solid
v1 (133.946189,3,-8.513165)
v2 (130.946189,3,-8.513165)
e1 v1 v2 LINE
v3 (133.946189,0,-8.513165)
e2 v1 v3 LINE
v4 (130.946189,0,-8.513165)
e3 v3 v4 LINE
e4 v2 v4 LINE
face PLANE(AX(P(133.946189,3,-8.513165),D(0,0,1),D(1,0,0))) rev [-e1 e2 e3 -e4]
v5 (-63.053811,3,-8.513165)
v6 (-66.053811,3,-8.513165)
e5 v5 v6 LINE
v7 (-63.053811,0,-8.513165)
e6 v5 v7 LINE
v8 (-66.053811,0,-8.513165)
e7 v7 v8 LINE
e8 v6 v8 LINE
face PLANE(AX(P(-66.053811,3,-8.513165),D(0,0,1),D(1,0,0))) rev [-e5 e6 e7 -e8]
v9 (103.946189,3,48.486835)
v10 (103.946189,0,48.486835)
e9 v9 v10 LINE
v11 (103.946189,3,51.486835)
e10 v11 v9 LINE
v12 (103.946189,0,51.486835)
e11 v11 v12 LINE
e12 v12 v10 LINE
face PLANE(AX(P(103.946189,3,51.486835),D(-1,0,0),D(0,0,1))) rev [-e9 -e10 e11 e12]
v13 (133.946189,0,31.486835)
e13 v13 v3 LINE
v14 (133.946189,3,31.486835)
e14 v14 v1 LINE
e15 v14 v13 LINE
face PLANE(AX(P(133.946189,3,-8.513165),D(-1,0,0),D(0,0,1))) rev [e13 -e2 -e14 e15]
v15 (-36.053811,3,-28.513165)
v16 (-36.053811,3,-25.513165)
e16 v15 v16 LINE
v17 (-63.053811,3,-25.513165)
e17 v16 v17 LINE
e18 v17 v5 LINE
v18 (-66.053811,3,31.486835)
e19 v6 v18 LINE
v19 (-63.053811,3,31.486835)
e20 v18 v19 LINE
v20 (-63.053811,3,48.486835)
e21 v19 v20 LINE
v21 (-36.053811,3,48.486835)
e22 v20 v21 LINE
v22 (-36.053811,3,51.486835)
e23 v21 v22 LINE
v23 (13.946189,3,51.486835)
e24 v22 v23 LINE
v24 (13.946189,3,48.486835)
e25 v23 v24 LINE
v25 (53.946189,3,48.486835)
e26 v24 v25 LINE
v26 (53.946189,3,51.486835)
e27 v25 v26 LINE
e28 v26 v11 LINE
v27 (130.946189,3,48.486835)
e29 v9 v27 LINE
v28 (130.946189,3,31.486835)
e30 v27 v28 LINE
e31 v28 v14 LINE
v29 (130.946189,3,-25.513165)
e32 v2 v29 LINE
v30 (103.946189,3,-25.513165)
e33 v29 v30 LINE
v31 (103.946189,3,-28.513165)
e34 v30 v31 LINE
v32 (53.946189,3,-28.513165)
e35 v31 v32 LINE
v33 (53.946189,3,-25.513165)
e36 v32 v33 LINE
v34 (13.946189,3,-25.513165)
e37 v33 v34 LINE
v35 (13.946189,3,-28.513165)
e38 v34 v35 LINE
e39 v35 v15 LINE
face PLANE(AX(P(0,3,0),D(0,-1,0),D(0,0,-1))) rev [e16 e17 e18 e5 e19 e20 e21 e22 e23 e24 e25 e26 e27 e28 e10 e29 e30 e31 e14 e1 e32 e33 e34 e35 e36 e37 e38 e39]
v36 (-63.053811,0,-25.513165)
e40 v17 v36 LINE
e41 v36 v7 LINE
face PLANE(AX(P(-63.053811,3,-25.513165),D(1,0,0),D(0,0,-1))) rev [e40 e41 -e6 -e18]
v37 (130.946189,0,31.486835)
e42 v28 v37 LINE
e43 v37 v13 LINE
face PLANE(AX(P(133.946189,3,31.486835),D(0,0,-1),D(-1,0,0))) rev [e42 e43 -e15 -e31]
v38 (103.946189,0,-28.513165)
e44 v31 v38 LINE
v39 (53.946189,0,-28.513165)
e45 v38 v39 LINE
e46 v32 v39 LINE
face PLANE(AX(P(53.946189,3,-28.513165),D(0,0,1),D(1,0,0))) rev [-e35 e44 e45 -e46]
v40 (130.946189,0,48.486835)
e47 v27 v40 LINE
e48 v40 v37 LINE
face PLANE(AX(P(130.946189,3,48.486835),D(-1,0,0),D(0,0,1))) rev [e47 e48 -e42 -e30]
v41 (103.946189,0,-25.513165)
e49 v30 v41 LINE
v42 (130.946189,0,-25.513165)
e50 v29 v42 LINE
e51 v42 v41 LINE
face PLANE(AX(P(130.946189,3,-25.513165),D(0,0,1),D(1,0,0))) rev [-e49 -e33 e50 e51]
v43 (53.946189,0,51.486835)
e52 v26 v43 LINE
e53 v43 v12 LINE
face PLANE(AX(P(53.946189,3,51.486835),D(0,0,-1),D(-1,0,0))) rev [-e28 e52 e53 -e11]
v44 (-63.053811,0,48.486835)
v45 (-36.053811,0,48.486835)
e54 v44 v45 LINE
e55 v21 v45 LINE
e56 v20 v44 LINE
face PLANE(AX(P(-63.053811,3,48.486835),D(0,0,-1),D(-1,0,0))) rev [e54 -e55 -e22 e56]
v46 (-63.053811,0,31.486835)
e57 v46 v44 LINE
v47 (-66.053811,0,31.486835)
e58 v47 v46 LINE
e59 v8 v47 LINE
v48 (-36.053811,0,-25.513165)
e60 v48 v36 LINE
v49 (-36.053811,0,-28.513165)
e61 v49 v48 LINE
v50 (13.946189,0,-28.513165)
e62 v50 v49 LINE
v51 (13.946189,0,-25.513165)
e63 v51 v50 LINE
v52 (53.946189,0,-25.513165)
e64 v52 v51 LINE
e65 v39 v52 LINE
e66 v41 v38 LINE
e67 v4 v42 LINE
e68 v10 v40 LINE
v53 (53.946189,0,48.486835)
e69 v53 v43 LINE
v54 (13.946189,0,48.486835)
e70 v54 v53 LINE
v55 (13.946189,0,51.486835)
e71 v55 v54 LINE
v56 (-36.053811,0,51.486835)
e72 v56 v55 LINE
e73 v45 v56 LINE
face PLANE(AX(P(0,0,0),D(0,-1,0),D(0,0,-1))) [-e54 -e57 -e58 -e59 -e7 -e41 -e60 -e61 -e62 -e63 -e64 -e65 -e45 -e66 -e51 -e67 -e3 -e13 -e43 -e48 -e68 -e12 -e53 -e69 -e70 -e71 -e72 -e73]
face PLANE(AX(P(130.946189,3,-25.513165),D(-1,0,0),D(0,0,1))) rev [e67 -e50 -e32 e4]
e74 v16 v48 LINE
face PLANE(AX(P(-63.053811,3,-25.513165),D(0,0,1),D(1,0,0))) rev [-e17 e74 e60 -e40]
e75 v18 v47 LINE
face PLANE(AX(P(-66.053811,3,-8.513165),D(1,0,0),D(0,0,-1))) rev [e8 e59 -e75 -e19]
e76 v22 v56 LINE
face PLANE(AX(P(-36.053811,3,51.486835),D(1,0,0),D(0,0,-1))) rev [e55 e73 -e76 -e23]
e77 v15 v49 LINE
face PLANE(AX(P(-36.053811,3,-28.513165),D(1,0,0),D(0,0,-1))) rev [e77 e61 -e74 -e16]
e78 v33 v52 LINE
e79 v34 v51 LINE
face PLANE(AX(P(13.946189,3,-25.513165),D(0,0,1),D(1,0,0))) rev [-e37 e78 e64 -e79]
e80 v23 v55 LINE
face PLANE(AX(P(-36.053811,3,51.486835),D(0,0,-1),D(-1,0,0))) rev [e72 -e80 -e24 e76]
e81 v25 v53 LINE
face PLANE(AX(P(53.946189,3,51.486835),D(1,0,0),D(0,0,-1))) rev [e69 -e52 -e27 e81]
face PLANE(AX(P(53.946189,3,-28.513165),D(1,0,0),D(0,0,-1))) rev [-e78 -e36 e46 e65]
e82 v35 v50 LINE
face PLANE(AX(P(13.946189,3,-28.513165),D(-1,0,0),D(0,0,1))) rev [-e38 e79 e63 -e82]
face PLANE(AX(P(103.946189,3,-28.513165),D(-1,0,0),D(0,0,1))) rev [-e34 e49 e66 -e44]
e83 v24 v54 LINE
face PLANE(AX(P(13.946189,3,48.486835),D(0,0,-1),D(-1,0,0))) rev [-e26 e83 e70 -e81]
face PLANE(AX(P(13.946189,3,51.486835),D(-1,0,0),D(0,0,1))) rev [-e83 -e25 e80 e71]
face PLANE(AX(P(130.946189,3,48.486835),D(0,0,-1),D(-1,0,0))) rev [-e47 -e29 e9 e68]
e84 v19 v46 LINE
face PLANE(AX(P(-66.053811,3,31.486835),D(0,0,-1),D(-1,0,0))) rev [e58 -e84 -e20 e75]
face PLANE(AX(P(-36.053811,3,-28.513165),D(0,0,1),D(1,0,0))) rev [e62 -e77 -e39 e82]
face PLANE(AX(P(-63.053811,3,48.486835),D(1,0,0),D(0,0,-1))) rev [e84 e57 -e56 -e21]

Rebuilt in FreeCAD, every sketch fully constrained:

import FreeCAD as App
import Part
import Sketcher
Q = App.Units.Quantity

doc = App.newDocument("Part")
body = doc.addObject("PartDesign::Body", "Body")

# Sketch on XZ plane
sketch1 = body.newObject("Sketcher::SketchObject", "Sketch")
sketch1.AttachmentSupport = (doc.getObject("XZ_Plane"), [""])
sketch1.MapMode = "FlatFace"
sketch1.addGeometry([
    Part.LineSegment(App.Vector(13.9, -28.5, 0), App.Vector(-36.1, -28.5, 0)),  # 0
    Part.LineSegment(App.Vector(-36.1, -28.5, 0), App.Vector(-36.1, -25.5, 0)),  # 1
    Part.LineSegment(App.Vector(-36.1, -25.5, 0), App.Vector(-63.1, -25.5, 0)),  # 2
    Part.LineSegment(App.Vector(-63.1, -25.5, 0), App.Vector(-63.1, -8.5, 0)),  # 3
    Part.LineSegment(App.Vector(-63.1, -8.5, 0), App.Vector(-66.1, -8.5, 0)),  # 4
    Part.LineSegment(App.Vector(-66.1, -8.5, 0), App.Vector(-66.1, 31.5, 0)),  # 5
    Part.LineSegment(App.Vector(-66.1, 31.5, 0), App.Vector(-63.1, 31.5, 0)),  # 6
    Part.LineSegment(App.Vector(-63.1, 31.5, 0), App.Vector(-63.1, 48.5, 0)),  # 7
    Part.LineSegment(App.Vector(-63.1, 48.5, 0), App.Vector(-36.1, 48.5, 0)),  # 8
    Part.LineSegment(App.Vector(-36.1, 48.5, 0), App.Vector(-36.1, 51.5, 0)),  # 9
    Part.LineSegment(App.Vector(-36.1, 51.5, 0), App.Vector(13.9, 51.5, 0)),  # 10
    Part.LineSegment(App.Vector(13.9, 51.5, 0), App.Vector(13.9, 48.5, 0)),  # 11
    Part.LineSegment(App.Vector(13.9, 48.5, 0), App.Vector(53.9, 48.5, 0)),  # 12
    Part.LineSegment(App.Vector(53.9, 48.5, 0), App.Vector(53.9, 51.5, 0)),  # 13
    Part.LineSegment(App.Vector(53.9, 51.5, 0), App.Vector(103.9, 51.5, 0)),  # 14
    Part.LineSegment(App.Vector(103.9, 51.5, 0), App.Vector(103.9, 48.5, 0)),  # 15
    Part.LineSegment(App.Vector(103.9, 48.5, 0), App.Vector(130.9, 48.5, 0)),  # 16
    Part.LineSegment(App.Vector(130.9, 48.5, 0), App.Vector(130.9, 31.5, 0)),  # 17
    Part.LineSegment(App.Vector(130.9, 31.5, 0), App.Vector(133.9, 31.5, 0)),  # 18
    Part.LineSegment(App.Vector(133.9, 31.5, 0), App.Vector(133.9, -8.5, 0)),  # 19
    Part.LineSegment(App.Vector(133.9, -8.5, 0), App.Vector(130.9, -8.5, 0)),  # 20
    Part.LineSegment(App.Vector(130.9, -8.5, 0), App.Vector(130.9, -25.5, 0)),  # 21
    Part.LineSegment(App.Vector(130.9, -25.5, 0), App.Vector(103.9, -25.5, 0)),  # 22
    Part.LineSegment(App.Vector(103.9, -25.5, 0), App.Vector(103.9, -28.5, 0)),  # 23
    Part.LineSegment(App.Vector(103.9, -28.5, 0), App.Vector(53.9, -28.5, 0)),  # 24
    Part.LineSegment(App.Vector(53.9, -28.5, 0), App.Vector(53.9, -25.5, 0)),  # 25
    Part.LineSegment(App.Vector(53.9, -25.5, 0), App.Vector(13.9, -25.5, 0)),  # 26
    Part.LineSegment(App.Vector(13.9, -25.5, 0), App.Vector(13.9, -28.5, 0)),  # 27
], False)
sketch1.addConstraint([
    Sketcher.Constraint("Coincident", 0, 2, 1, 1),
    Sketcher.Constraint("Coincident", 1, 2, 2, 1),
    Sketcher.Constraint("Coincident", 2, 2, 3, 1),
    Sketcher.Constraint("Coincident", 3, 2, 4, 1),
    Sketcher.Constraint("Coincident", 4, 2, 5, 1),
    Sketcher.Constraint("Coincident", 5, 2, 6, 1),
    Sketcher.Constraint("Coincident", 6, 2, 7, 1),
    Sketcher.Constraint("Coincident", 7, 2, 8, 1),
    Sketcher.Constraint("Coincident", 8, 2, 9, 1),
    Sketcher.Constraint("Coincident", 9, 2, 10, 1),
    Sketcher.Constraint("Coincident", 10, 2, 11, 1),
    Sketcher.Constraint("Coincident", 11, 2, 12, 1),
    Sketcher.Constraint("Coincident", 12, 2, 13, 1),
    Sketcher.Constraint("Coincident", 13, 2, 14, 1),
    Sketcher.Constraint("Coincident", 14, 2, 15, 1),
    Sketcher.Constraint("Coincident", 15, 2, 16, 1),
    Sketcher.Constraint("Coincident", 16, 2, 17, 1),
    Sketcher.Constraint("Coincident", 17, 2, 18, 1),
    Sketcher.Constraint("Coincident", 18, 2, 19, 1),
    Sketcher.Constraint("Coincident", 19, 2, 20, 1),
    Sketcher.Constraint("Coincident", 20, 2, 21, 1),
    Sketcher.Constraint("Coincident", 21, 2, 22, 1),
    Sketcher.Constraint("Coincident", 22, 2, 23, 1),
    Sketcher.Constraint("Coincident", 23, 2, 24, 1),
    Sketcher.Constraint("Coincident", 24, 2, 25, 1),
    Sketcher.Constraint("Coincident", 25, 2, 26, 1),
    Sketcher.Constraint("Coincident", 26, 2, 27, 1),
    Sketcher.Constraint("Coincident", 27, 2, 0, 1),
    Sketcher.Constraint("Horizontal", 0),
    Sketcher.Constraint("Vertical", 1),
    Sketcher.Constraint("Horizontal", 2),
    Sketcher.Constraint("Vertical", 3),
    Sketcher.Constraint("Horizontal", 4),
    Sketcher.Constraint("Vertical", 5),
    Sketcher.Constraint("Horizontal", 6),
    Sketcher.Constraint("Vertical", 7),
    Sketcher.Constraint("Horizontal", 8),
    Sketcher.Constraint("Vertical", 9),
    Sketcher.Constraint("Horizontal", 10),
    Sketcher.Constraint("Vertical", 11),
    Sketcher.Constraint("Horizontal", 12),
    Sketcher.Constraint("Vertical", 13),
    Sketcher.Constraint("Horizontal", 14),
    Sketcher.Constraint("Vertical", 15),
    Sketcher.Constraint("Horizontal", 16),
    Sketcher.Constraint("Vertical", 17),
    Sketcher.Constraint("Horizontal", 18),
    Sketcher.Constraint("Vertical", 19),
    Sketcher.Constraint("Horizontal", 20),
    Sketcher.Constraint("Vertical", 21),
    Sketcher.Constraint("Horizontal", 22),
    Sketcher.Constraint("Vertical", 23),
    Sketcher.Constraint("Horizontal", 24),
    Sketcher.Constraint("Vertical", 25),
    Sketcher.Constraint("Horizontal", 26),
    Sketcher.Constraint("Vertical", 27),
    Sketcher.Constraint("Horizontal", 8, 2, 11, 2),
    Sketcher.Constraint("Horizontal", 10, 2, 13, 2),
    Sketcher.Constraint("Horizontal", 12, 2, 15, 2),
    Sketcher.Constraint("Horizontal", 6, 2, 17, 2),
    Sketcher.Constraint("Horizontal", 4, 2, 19, 2),
    Sketcher.Constraint("Horizontal", 2, 2, 21, 2),
    Sketcher.Constraint("Horizontal", 0, 2, 23, 2),
    Sketcher.Constraint("Horizontal", 22, 2, 25, 2),
    Sketcher.Constraint("Vertical", 3, 2, 6, 2),
    Sketcher.Constraint("Vertical", 1, 2, 8, 2),
    Sketcher.Constraint("Vertical", 17, 2, 20, 2),
    Sketcher.Constraint("Vertical", 15, 2, 22, 2),
    Sketcher.Constraint("Vertical", 13, 2, 24, 2),
    Sketcher.Constraint("Vertical", 11, 2, 26, 2),
    Sketcher.Constraint("Equal", 10, 14),
    Sketcher.Constraint("Equal", 8, 16),
    Sketcher.Constraint("Equal", 6, 18),
    Sketcher.Constraint("Equal", 20, 1),
    Sketcher.Constraint("Equal", 26, 5),
    Sketcher.Constraint("Equal", 3, 7),
    Sketcher.Constraint("Equal", 1, 9),
    Sketcher.Constraint("DistanceX", 0, 2, 0, 1, Q("50 mm")),
    Sketcher.Constraint("DistanceX", 2, 2, 2, 1, Q("27 mm")),
    Sketcher.Constraint("DistanceX", 4, 2, 4, 1, Q("3 mm")),
    Sketcher.Constraint("DistanceX", 12, 1, 12, 2, Q("40 mm")),
    Sketcher.Constraint("DistanceY", 3, 1, 3, 2, Q("17 mm")),
    Sketcher.Constraint("DistanceX", 0, 2, -1, 1, Q("36.053811 mm")),
    Sketcher.Constraint("DistanceY", 0, 2, -1, 1, Q("28.513165 mm")),
])
pad1 = body.newObject("PartDesign::Pad", "Pad")
pad1.Profile = sketch1
pad1.Length = 3
pad1.Reversed = True

doc.recompute()
